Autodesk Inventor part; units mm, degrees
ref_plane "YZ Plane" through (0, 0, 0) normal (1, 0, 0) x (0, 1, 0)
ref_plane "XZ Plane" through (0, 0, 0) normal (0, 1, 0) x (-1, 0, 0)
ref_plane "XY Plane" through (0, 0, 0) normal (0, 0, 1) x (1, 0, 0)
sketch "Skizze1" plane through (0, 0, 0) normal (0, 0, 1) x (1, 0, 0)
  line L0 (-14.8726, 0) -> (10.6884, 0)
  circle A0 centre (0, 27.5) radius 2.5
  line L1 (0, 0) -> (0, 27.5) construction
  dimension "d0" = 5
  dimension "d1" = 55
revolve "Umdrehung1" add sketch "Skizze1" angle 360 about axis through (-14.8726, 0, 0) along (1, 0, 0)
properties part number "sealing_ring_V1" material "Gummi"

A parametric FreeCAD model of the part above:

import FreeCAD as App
import Part
import Sketcher
from FreeCAD import Vector
Q = App.Units.Quantity

doc = App.newDocument("Part")
body = doc.addObject("PartDesign::Body", "Body")

# Sketch on XY plane
sketch1 = body.newObject("Sketcher::SketchObject", "Sketch")
sketch1.AttachmentSupport = (doc.getObject("XY_Plane"), [""])
sketch1.MapMode = "FlatFace"
sketch1.addGeometry(Part.Circle(Vector(0, 27.5, 0), Vector(0, 0, 1), 2.5), False)
sketch1.addConstraint(Sketcher.Constraint("PointOnObject", 0, 3, -2))
sketch1.addConstraint(Sketcher.Constraint("Diameter", 0, Q("5 mm")))
sketch1.addConstraint(Sketcher.Constraint("DistanceY", -1, 1, 0, 3, Q("27.5 mm")))
revolution = body.newObject("PartDesign::Revolution", "Revolution")
revolution.Profile = sketch1
revolution.ReferenceAxis = (sketch1, ["H_Axis"])
revolution.Angle = 360

doc.recompute()
